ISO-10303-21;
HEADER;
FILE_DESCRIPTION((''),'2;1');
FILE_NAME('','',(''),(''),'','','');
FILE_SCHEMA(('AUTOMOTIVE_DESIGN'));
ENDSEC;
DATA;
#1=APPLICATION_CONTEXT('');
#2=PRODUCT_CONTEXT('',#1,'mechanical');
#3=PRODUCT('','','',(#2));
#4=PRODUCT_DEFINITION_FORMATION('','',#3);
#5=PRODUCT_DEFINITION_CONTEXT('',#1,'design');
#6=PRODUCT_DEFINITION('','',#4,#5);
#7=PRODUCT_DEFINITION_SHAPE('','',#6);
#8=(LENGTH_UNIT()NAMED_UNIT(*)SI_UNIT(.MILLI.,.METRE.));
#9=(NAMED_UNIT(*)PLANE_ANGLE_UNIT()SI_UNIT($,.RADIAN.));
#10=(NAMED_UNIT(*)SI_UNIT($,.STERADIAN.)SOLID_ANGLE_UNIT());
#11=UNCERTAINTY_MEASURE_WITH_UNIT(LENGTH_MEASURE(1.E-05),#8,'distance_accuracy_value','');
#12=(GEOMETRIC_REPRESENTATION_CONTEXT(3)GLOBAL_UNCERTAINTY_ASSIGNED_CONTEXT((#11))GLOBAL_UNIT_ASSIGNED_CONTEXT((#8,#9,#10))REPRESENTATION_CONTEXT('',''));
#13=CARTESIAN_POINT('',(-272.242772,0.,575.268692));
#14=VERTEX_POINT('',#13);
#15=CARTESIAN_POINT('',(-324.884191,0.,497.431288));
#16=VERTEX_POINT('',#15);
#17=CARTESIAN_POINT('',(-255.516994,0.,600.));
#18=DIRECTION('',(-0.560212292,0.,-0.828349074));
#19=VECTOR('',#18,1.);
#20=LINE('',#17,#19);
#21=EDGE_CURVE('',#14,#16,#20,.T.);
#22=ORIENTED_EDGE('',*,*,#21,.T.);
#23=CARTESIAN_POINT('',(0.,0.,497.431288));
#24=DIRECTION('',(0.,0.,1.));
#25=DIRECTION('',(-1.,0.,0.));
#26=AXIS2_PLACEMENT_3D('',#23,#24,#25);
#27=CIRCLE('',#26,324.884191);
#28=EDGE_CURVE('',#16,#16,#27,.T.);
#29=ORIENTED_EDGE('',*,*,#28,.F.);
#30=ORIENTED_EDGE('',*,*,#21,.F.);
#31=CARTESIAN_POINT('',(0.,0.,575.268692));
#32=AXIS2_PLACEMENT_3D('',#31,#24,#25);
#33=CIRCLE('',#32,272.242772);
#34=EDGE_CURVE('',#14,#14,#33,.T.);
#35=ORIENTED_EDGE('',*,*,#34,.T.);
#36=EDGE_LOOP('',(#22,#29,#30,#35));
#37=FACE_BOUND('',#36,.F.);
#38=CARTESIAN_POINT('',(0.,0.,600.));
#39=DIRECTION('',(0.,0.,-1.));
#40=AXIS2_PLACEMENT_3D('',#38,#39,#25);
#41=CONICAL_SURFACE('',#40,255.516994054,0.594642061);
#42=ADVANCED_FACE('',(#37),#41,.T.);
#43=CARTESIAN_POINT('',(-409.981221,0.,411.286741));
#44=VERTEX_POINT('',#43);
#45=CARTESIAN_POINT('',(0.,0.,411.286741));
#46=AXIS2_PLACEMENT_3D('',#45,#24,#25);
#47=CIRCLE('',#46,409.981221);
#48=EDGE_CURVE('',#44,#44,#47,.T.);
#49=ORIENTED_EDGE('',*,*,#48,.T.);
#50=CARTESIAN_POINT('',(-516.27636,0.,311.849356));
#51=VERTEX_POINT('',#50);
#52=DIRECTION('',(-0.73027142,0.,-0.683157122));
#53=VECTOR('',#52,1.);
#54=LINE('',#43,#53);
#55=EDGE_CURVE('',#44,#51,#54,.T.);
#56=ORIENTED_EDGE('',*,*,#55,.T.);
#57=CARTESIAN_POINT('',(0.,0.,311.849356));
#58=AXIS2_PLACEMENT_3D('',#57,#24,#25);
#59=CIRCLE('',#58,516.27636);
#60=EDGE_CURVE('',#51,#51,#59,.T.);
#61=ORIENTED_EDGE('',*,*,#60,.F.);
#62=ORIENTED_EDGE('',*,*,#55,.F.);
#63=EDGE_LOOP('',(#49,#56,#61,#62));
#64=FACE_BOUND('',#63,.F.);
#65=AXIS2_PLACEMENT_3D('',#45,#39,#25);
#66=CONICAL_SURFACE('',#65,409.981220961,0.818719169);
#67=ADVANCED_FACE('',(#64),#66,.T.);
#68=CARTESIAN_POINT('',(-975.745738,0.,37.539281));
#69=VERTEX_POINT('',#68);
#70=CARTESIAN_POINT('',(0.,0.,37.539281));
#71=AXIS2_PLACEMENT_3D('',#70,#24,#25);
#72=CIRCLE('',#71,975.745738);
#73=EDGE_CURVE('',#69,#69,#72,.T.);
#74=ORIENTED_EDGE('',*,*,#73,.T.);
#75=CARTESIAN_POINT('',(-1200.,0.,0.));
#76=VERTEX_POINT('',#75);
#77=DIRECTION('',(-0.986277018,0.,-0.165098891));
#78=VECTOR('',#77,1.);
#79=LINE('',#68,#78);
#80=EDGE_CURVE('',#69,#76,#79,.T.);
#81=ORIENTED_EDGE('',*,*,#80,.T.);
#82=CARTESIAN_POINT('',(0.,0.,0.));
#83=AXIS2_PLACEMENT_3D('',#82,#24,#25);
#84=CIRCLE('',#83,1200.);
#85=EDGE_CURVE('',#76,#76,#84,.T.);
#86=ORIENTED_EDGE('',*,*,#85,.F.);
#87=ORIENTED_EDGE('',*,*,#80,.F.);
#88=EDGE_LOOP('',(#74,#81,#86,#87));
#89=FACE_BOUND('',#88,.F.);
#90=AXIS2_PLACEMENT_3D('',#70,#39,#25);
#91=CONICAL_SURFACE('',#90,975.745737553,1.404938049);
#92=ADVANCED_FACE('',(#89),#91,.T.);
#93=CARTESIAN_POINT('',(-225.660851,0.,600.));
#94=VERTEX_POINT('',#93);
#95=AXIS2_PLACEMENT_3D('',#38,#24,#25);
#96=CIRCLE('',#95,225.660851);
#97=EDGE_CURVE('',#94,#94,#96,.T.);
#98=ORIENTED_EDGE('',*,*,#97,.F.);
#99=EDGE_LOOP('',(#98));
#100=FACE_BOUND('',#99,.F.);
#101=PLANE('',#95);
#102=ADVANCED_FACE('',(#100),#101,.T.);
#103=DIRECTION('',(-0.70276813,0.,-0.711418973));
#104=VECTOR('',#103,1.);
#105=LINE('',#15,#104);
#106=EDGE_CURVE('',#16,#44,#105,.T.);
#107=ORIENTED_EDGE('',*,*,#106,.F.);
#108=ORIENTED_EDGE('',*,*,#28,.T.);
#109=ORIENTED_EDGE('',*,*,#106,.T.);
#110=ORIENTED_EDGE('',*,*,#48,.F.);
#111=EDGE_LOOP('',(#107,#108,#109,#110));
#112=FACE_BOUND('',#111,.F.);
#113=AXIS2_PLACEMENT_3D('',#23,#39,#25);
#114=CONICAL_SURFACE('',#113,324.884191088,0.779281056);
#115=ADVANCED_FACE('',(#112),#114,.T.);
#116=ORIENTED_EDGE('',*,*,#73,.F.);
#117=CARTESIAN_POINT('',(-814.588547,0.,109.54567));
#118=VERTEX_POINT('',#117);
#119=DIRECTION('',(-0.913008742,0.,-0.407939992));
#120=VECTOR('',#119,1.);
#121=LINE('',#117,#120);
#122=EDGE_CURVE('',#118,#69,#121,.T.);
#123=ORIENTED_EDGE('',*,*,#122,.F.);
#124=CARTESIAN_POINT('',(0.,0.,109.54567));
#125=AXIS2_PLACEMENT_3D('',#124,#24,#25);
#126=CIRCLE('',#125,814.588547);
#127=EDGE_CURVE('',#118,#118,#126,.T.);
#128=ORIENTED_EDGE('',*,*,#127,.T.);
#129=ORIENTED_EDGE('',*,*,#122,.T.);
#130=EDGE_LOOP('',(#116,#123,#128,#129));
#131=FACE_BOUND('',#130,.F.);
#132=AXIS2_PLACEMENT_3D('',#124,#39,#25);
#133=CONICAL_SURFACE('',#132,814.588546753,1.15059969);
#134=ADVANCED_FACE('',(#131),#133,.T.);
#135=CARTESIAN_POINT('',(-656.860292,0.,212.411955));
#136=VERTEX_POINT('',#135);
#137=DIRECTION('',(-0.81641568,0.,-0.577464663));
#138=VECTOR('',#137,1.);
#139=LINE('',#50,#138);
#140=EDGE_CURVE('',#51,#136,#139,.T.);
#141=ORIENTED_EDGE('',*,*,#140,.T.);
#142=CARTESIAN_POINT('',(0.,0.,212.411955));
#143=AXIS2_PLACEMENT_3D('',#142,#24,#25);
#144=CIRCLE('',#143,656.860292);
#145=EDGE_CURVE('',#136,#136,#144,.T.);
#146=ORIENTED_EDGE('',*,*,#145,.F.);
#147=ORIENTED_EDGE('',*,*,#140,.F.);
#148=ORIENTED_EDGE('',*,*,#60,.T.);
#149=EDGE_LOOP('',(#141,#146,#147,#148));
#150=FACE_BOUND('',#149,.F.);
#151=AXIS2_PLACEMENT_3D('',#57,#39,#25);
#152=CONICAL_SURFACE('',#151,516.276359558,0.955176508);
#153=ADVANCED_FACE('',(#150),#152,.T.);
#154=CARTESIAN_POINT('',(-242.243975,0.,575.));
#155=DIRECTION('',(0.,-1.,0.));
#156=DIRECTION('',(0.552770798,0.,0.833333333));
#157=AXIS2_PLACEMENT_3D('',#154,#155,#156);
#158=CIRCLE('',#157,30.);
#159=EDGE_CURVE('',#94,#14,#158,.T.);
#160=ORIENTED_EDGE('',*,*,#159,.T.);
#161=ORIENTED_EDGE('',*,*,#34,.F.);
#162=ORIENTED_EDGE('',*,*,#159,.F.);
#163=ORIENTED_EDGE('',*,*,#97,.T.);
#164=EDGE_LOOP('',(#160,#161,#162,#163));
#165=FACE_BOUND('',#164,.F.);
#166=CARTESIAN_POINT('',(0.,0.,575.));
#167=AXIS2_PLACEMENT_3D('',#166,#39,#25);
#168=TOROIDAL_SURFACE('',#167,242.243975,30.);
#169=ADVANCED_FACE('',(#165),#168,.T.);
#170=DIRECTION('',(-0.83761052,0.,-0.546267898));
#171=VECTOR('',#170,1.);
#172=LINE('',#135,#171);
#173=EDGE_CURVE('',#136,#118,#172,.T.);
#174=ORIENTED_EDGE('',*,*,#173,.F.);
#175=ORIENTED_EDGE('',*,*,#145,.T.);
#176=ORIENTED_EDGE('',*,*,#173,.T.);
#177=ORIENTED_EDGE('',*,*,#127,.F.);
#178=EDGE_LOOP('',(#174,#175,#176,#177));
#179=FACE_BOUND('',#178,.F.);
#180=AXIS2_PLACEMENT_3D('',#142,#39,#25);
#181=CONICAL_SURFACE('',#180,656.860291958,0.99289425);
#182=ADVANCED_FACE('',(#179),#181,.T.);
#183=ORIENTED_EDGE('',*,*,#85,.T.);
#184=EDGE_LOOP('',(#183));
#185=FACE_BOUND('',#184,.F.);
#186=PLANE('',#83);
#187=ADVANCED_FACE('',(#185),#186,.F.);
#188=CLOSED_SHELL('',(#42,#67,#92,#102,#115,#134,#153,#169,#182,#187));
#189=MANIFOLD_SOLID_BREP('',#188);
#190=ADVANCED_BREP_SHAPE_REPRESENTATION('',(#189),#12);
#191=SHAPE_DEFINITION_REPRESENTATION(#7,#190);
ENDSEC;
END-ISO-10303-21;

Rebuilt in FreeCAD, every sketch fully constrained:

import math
import FreeCAD as App
import Part
import Sketcher
Q = App.Units.Quantity

doc = App.newDocument("Part")
body = doc.addObject("PartDesign::Body", "Body")

sketch1 = doc.addObject("Sketcher::SketchObject", "Sketch")
body.addObject(sketch1)
sketch1.AttachmentSupport = (doc.XZ_Plane, [""])
sketch1.MapMode = "FlatFace"
sketch1.addGeometry([
    Part.LineSegment(App.Vector(-1200, 0, 0), App.Vector(0, 0, 0)),
    Part.LineSegment(App.Vector(0, 0, 0), App.Vector(0, 600, 0)),
    Part.LineSegment(App.Vector(0, 600, 0), App.Vector(-226, 600, 0)),
    Part.ArcOfCircle(Part.Circle(App.Vector(-242, 575, 0), App.Vector(0, 0, 1), 30), math.radians(56), math.radians(179)),
    Part.LineSegment(App.Vector(-272, 575, 0), App.Vector(-325, 497, 0)),
    Part.LineSegment(App.Vector(-325, 497, 0), App.Vector(-410, 411, 0)),
    Part.LineSegment(App.Vector(-410, 411, 0), App.Vector(-516, 312, 0)),
    Part.LineSegment(App.Vector(-516, 312, 0), App.Vector(-657, 212, 0)),
    Part.LineSegment(App.Vector(-657, 212, 0), App.Vector(-815, 110, 0)),
    Part.LineSegment(App.Vector(-815, 110, 0), App.Vector(-976, 38, 0)),
    Part.LineSegment(App.Vector(-976, 38, 0), App.Vector(-1200, 0, 0)),
], False)
sketch1.addConstraint([
    Sketcher.Constraint("Coincident", 0, 2, 1, 1),
    Sketcher.Constraint("Coincident", 1, 2, 2, 1),
    Sketcher.Constraint("Coincident", 2, 2, 3, 1),
    Sketcher.Constraint("Coincident", 3, 2, 4, 1),
    Sketcher.Constraint("Coincident", 4, 2, 5, 1),
    Sketcher.Constraint("Coincident", 5, 2, 6, 1),
    Sketcher.Constraint("Coincident", 6, 2, 7, 1),
    Sketcher.Constraint("Coincident", 7, 2, 8, 1),
    Sketcher.Constraint("Coincident", 8, 2, 9, 1),
    Sketcher.Constraint("Coincident", 9, 2, 10, 1),
    Sketcher.Constraint("Coincident", 10, 2, 0, 1),
    Sketcher.Constraint("Horizontal", 0),
    Sketcher.Constraint("Vertical", 1),
    Sketcher.Constraint("Horizontal", 2),
    Sketcher.Constraint("Coincident", 0, 2, -1, 1),
    Sketcher.Constraint("Radius", 3, Q("30 mm")),
    Sketcher.Constraint("DistanceX", 0, 1, 0, 2, Q("1200 mm")),
    Sketcher.Constraint("DistanceY", 1, 1, 1, 2, Q("600 mm")),
    Sketcher.Constraint("DistanceY", -1, 1, 3, 3, Q("575 mm")),
    Sketcher.Constraint("DistanceX", 2, 2, 2, 1, Q("225.660851 mm")),
    Sketcher.Constraint("DistanceY", 7, 2, 6, 2, Q("99.437401 mm")),
    Sketcher.Constraint("DistanceX", 7, 2, 4, 2, Q("331.976101 mm")),
    Sketcher.Constraint("Distance", 4, Q("93.966912 mm")),
    Sketcher.Constraint("Distance", 6, Q("145.55566 mm")),
    Sketcher.Constraint("Distance", 7, Q("172.196512 mm")),
    Sketcher.Constraint("Distance", 9, Q("176.51221 mm")),
    Sketcher.Constraint("Distance", 10, Q("227.374519 mm")),
    Sketcher.Constraint("DistanceY", -1, 1, 3, 2, Q("575.268692 mm")),
    Sketcher.Constraint("DistanceX", 4, 2, -1, 1, Q("324.884191 mm")),
    Sketcher.Constraint("DistanceX", 5, 2, -1, 1, Q("409.981221 mm")),
    Sketcher.Constraint("DistanceY", -1, 1, 5, 2, Q("411.286741 mm")),
    Sketcher.Constraint("DistanceY", -1, 1, 8, 2, Q("109.54567 mm")),
    Sketcher.Constraint("DistanceY", -1, 1, 9, 2, Q("37.539281 mm")),
])
revolution = doc.addObject("PartDesign::Revolution", "Revolution")
body.addObject(revolution)
revolution.Profile = sketch1
revolution.ReferenceAxis = (sketch1, ["V_Axis"])
revolution.Angle = 360

doc.recompute()
